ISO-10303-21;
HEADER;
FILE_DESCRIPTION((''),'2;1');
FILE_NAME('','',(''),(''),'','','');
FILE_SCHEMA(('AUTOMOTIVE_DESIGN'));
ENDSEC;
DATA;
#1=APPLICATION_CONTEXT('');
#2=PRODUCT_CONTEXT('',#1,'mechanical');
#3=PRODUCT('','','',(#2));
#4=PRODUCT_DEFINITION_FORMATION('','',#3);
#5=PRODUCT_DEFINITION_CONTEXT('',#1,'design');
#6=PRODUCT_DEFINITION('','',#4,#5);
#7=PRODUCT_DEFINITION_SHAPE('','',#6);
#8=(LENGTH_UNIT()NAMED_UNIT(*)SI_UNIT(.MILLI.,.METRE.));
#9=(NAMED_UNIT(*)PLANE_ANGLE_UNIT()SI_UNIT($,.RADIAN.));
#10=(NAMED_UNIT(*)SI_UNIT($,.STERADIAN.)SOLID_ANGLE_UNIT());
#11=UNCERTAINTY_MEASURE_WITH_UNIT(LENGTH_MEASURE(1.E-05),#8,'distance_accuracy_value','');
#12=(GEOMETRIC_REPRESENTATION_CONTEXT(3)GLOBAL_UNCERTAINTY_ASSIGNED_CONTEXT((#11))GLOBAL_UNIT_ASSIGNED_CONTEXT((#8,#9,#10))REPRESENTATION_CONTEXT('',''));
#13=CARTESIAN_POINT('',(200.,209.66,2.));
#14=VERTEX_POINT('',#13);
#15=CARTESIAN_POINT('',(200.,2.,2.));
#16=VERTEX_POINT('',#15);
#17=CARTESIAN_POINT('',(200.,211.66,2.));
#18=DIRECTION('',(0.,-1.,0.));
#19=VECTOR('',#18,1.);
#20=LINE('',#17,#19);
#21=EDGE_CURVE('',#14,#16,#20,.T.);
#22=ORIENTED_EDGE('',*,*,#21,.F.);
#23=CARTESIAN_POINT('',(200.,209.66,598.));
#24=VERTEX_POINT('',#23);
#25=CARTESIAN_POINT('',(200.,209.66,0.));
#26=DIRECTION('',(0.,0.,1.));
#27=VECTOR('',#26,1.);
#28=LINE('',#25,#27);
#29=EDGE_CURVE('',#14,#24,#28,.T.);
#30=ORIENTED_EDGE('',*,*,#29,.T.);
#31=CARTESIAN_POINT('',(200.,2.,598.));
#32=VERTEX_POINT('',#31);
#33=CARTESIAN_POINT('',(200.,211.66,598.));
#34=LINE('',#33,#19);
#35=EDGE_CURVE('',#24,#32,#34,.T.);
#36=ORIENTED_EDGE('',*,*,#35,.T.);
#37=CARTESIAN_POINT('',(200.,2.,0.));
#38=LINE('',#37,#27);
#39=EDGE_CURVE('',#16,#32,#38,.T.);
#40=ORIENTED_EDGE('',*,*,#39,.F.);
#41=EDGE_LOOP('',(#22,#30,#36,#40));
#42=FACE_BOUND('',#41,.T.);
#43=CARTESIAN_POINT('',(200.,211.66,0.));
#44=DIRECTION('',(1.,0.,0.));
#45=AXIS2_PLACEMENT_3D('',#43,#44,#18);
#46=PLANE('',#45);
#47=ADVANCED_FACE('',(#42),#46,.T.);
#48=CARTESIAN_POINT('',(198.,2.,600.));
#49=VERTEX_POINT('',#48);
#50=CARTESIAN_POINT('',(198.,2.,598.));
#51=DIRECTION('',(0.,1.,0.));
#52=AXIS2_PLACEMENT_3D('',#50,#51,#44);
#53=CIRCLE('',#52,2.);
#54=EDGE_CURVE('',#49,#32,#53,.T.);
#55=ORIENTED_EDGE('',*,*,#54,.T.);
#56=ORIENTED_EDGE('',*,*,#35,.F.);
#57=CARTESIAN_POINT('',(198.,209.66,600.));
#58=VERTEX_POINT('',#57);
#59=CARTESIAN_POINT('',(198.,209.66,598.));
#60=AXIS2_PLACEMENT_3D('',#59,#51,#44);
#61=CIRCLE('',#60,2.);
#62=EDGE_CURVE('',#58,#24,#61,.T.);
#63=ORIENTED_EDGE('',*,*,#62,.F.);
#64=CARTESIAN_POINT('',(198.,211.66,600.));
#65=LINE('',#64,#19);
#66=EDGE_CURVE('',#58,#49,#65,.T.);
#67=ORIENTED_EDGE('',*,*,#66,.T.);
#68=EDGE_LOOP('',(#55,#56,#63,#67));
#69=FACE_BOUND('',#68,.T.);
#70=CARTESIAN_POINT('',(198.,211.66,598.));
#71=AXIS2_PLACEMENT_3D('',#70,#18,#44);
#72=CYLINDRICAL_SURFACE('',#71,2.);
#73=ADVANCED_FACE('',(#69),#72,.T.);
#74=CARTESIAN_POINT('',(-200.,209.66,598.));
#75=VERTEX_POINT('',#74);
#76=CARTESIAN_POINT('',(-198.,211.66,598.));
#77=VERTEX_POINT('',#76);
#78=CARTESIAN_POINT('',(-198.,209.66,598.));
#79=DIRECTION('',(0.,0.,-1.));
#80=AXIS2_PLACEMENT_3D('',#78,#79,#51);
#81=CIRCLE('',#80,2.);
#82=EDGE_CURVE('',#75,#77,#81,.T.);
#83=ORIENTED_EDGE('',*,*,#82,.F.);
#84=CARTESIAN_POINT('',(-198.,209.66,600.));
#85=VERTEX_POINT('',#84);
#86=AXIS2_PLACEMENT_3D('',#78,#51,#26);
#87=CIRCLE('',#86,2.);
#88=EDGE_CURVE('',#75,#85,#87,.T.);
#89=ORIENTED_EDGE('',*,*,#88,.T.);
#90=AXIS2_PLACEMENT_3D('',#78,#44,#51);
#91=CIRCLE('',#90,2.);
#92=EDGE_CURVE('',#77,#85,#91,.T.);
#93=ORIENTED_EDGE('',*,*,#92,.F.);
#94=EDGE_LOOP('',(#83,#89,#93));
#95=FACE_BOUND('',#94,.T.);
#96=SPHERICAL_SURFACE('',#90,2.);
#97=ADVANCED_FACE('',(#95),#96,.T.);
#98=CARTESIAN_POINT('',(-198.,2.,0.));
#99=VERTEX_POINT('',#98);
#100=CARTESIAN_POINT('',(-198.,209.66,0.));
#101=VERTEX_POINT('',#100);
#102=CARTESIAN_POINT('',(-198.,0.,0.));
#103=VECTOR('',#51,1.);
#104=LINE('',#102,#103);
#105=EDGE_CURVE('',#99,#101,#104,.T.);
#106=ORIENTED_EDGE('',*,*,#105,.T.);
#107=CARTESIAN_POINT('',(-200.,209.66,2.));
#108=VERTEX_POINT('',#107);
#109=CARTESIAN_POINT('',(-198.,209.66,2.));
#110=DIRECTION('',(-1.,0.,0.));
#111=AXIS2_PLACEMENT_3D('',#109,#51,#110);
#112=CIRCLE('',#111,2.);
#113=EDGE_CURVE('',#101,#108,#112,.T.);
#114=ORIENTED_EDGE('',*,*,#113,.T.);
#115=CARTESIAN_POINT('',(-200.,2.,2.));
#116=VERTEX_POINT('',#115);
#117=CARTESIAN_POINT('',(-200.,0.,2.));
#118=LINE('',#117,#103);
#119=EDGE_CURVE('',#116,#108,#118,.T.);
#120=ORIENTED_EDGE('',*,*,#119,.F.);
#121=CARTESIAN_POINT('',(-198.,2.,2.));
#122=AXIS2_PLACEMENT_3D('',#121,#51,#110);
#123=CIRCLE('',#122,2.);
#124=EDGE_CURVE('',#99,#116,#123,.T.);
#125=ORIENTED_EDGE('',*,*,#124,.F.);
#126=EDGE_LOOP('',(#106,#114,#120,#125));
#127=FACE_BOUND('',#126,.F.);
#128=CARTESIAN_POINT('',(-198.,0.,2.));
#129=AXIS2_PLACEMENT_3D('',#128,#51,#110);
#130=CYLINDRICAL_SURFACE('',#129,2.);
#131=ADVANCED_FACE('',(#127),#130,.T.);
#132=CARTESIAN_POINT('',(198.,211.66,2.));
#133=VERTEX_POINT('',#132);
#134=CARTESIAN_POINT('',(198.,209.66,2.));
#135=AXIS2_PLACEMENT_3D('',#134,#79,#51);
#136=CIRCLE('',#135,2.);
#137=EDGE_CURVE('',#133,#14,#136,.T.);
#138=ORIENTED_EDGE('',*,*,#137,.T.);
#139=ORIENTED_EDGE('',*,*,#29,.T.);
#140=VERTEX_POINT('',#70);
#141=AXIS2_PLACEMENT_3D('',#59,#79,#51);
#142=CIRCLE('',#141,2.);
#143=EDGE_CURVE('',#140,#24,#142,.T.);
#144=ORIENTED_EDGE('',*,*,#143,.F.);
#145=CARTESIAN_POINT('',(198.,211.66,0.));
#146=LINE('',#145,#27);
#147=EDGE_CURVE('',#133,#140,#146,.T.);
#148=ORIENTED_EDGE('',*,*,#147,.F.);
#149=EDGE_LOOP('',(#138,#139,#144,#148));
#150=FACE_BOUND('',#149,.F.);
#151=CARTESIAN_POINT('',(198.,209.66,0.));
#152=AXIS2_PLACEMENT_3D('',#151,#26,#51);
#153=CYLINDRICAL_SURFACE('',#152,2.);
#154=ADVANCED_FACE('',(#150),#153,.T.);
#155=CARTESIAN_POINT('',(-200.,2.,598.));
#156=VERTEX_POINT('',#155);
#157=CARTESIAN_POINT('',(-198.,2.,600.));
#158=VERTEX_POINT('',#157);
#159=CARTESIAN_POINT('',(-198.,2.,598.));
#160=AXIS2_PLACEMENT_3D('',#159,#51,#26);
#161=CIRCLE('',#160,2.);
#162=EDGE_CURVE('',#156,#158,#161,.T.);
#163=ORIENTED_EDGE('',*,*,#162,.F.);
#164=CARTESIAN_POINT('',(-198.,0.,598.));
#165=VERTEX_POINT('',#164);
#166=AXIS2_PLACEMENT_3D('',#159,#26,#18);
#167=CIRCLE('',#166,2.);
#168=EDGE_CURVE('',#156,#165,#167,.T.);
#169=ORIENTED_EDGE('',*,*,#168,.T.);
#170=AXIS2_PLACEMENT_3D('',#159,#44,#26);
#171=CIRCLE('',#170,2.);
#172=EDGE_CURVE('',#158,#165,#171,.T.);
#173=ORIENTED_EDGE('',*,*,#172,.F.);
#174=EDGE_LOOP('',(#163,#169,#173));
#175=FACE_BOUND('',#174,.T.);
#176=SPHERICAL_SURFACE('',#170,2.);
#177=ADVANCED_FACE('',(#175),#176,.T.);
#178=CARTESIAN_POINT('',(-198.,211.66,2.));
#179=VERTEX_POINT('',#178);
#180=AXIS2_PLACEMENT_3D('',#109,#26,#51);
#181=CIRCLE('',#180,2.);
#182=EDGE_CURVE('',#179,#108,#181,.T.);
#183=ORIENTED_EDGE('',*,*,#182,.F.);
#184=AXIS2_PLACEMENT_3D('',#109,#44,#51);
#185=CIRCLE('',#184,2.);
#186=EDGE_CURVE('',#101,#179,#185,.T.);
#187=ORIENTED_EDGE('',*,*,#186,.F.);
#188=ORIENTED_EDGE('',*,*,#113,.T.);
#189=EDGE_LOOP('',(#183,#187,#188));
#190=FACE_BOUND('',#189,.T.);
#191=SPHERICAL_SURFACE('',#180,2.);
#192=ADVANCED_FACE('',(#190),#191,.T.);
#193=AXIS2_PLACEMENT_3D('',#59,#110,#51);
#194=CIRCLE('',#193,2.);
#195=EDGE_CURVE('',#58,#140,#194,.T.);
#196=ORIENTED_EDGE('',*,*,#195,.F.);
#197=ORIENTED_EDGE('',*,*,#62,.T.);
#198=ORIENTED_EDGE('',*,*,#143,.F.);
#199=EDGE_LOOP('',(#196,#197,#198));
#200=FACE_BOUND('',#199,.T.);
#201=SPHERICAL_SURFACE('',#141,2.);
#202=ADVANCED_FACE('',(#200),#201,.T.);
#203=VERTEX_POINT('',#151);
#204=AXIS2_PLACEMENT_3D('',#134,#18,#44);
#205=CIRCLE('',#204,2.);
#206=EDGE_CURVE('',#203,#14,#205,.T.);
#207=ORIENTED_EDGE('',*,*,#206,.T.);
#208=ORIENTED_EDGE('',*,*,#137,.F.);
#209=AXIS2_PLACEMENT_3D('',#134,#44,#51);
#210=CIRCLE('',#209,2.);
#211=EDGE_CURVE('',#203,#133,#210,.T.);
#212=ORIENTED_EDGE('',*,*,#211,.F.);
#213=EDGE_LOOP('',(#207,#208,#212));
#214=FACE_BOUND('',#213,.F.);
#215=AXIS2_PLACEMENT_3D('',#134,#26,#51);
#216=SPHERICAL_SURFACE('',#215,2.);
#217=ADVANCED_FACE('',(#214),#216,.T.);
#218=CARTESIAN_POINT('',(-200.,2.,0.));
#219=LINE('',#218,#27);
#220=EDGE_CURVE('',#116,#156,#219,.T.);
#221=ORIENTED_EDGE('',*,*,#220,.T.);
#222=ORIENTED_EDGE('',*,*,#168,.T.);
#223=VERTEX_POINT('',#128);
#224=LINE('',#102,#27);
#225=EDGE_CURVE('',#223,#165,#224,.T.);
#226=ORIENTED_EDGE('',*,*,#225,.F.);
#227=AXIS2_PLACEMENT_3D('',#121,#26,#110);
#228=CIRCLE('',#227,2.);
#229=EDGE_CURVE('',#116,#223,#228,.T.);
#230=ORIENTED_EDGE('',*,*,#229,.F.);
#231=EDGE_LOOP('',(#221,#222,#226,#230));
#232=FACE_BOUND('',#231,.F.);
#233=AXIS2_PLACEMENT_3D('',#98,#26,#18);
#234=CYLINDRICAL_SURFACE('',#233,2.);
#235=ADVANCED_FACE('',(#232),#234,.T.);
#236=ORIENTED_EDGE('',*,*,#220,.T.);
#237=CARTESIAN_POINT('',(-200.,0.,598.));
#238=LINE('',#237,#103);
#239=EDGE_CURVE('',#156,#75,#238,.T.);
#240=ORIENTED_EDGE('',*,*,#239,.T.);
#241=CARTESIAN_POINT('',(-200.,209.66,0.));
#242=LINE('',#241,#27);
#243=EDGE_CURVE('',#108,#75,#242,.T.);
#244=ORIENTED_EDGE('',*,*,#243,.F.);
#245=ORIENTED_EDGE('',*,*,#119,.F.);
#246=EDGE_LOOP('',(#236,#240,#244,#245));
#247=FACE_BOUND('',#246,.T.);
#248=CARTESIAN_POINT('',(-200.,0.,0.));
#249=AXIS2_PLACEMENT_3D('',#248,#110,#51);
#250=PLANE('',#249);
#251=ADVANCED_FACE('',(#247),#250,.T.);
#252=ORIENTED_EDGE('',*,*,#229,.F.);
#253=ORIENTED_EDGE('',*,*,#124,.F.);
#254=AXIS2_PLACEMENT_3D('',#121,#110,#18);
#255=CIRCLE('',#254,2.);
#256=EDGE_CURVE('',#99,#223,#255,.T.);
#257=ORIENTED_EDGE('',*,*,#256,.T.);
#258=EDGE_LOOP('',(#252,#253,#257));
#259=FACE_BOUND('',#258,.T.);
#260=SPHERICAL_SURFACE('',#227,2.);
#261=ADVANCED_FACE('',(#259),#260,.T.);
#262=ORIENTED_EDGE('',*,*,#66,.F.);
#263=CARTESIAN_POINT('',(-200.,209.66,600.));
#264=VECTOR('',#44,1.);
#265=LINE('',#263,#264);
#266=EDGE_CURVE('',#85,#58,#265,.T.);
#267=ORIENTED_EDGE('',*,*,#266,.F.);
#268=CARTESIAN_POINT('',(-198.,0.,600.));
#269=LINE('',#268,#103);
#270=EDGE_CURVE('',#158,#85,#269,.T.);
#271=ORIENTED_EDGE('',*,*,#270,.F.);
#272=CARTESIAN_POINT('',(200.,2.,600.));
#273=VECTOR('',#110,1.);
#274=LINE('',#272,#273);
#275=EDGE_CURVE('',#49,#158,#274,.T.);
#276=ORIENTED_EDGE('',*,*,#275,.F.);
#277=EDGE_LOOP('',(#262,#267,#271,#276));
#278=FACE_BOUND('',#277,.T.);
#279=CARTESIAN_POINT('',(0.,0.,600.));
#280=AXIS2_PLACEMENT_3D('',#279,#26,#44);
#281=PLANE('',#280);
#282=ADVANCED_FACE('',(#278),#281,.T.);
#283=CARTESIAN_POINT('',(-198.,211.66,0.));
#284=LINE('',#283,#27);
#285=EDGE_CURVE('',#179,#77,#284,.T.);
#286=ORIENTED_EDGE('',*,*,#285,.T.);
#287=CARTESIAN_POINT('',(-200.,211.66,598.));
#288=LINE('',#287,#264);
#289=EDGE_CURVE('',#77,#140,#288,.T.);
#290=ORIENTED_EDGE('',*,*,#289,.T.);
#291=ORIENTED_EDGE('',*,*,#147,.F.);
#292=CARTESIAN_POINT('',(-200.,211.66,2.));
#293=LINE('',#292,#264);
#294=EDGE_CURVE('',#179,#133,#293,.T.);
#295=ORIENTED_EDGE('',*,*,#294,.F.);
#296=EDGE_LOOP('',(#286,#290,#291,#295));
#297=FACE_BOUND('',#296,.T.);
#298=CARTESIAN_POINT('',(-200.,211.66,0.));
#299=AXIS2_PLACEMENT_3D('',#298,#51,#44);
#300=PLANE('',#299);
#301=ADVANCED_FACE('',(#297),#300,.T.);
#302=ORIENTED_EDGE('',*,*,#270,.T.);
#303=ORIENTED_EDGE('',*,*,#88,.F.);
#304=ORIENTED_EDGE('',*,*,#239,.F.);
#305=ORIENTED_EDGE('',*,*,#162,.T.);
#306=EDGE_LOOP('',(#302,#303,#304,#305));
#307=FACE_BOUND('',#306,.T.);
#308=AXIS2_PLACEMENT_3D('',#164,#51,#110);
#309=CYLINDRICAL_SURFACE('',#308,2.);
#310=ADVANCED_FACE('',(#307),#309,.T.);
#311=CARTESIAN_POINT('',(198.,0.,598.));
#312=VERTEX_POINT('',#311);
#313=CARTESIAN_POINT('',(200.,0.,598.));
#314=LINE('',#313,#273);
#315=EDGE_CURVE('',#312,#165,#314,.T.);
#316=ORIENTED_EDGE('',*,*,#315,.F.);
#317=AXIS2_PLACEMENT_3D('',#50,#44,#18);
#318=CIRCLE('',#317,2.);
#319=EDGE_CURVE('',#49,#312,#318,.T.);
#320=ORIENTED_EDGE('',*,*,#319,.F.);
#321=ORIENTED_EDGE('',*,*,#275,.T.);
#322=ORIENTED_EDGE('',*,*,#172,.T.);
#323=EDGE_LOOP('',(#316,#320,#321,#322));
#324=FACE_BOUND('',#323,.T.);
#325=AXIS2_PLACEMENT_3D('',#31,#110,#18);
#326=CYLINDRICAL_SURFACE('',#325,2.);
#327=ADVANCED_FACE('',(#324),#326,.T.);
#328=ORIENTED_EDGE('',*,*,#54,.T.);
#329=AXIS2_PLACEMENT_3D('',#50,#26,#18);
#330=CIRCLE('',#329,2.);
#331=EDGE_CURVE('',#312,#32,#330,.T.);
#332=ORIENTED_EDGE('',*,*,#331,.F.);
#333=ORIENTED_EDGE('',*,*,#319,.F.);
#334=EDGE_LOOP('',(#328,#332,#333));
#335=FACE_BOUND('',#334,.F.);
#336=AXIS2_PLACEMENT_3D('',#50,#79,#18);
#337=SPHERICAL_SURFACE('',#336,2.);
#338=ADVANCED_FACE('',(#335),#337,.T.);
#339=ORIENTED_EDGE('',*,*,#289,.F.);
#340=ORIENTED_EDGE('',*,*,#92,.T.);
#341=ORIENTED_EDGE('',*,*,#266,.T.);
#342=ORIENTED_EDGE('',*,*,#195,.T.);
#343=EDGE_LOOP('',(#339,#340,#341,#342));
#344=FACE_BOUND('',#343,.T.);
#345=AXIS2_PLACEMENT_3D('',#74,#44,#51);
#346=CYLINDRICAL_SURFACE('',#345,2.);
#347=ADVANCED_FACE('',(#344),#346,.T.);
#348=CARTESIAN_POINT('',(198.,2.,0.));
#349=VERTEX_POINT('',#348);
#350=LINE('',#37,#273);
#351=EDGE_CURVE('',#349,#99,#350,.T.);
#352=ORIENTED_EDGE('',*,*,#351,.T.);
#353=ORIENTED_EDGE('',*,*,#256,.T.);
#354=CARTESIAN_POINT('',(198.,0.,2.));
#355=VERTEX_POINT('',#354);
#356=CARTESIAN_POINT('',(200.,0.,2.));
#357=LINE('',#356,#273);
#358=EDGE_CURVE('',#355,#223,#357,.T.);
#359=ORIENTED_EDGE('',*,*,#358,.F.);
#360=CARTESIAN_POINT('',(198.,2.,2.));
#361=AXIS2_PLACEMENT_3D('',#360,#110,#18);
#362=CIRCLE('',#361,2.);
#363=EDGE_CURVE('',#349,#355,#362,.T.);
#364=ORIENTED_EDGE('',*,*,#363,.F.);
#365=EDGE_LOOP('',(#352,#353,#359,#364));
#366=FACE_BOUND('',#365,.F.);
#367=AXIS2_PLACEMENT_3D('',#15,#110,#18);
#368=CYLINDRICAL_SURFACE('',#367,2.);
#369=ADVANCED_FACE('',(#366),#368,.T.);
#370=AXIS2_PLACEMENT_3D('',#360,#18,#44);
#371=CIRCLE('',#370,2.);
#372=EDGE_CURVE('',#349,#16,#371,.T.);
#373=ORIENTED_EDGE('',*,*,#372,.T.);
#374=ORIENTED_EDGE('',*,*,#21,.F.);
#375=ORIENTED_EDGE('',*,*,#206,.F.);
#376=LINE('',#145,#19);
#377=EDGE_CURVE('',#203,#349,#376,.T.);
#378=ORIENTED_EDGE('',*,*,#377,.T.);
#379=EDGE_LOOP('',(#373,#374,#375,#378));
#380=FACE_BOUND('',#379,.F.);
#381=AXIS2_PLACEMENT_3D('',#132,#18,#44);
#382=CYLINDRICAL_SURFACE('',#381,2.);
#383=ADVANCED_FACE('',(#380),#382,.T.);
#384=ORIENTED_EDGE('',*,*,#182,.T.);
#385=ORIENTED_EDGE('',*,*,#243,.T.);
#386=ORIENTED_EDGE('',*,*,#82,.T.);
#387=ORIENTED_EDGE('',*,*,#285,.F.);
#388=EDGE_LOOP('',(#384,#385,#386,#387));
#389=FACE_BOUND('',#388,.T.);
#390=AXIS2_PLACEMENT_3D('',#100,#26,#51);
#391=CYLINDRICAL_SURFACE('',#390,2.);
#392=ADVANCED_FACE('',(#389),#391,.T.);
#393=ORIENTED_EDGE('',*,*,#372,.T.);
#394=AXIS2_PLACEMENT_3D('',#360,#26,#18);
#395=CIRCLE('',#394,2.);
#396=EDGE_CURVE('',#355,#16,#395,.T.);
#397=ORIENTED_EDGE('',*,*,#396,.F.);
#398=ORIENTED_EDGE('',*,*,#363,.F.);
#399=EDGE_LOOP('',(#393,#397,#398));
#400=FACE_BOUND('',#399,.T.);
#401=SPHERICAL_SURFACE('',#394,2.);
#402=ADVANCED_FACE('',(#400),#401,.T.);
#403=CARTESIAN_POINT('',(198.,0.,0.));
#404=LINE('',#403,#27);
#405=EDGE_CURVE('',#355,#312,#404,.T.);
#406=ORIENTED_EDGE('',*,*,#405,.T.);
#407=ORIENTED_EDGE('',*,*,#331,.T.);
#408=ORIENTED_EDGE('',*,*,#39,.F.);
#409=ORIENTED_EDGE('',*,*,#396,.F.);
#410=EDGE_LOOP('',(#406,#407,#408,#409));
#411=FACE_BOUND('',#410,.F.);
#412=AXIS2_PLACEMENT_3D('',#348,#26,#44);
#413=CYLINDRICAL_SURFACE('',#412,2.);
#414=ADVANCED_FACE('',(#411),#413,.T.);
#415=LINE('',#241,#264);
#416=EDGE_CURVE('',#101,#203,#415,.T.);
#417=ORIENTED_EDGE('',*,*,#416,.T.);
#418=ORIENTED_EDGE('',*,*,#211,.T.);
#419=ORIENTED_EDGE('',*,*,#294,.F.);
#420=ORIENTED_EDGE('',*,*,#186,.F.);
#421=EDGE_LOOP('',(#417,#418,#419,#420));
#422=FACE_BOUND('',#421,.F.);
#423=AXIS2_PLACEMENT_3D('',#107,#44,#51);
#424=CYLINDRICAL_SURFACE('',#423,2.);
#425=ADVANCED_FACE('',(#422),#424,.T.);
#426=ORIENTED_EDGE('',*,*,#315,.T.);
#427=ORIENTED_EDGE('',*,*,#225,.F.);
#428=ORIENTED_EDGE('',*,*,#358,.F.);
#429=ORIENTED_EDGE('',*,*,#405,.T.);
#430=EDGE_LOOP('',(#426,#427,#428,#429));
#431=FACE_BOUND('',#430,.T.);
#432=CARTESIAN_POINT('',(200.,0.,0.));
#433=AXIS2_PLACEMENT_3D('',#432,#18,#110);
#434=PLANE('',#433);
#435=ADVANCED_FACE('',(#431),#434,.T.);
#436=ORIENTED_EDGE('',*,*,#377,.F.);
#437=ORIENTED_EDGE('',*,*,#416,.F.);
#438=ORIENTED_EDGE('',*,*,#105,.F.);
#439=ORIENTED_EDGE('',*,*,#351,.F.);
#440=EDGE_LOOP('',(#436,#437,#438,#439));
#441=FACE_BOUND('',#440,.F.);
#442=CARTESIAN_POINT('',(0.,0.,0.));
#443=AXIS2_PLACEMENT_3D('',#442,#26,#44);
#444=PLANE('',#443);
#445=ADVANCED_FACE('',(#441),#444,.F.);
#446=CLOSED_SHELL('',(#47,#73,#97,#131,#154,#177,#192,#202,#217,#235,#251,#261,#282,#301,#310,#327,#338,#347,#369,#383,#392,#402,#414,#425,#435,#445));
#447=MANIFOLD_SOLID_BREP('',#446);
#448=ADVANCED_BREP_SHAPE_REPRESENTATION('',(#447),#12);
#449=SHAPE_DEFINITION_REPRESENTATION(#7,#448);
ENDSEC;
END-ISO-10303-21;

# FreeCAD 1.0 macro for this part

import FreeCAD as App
import Part
import Sketcher


def add_polygon(sketch, points):
    """Adds a closed chain of lines whose ends are joined by coincident constraints."""
    first, n = sketch.GeometryCount, len(points)
    for a, b in zip(points, points[1:] + points[:1]):
        sketch.addGeometry(Part.LineSegment(App.Vector(*a, 0), App.Vector(*b, 0)), False)
    for i in range(n):
        sketch.addConstraint(Sketcher.Constraint("Coincident", first + i, 2, first + (i + 1) % n, 1))

doc = App.newDocument("Part")
body = doc.addObject("PartDesign::Body", "Body")

# Sketch on XY plane
sketch1 = body.newObject("Sketcher::SketchObject", "Sketch")
sketch1.AttachmentSupport = (doc.getObject("XY_Plane"), [""])
sketch1.MapMode = "FlatFace"
add_polygon(sketch1, [(200, 212), (-200, 212), (-200, 0), (200, 0)])  # lines 0-3
sketch1.addConstraint([
    Sketcher.Constraint("Horizontal", 0),
    Sketcher.Constraint("Vertical", 1),
    Sketcher.Constraint("Horizontal", 2),
    Sketcher.Constraint("Vertical", 3),
    Sketcher.Constraint("Symmetric", 1, 2, 2, 2, -1, 1),
    Sketcher.Constraint("DistanceX", 0, 2, 0, 1, 400.0),
    Sketcher.Constraint("DistanceY", 1, 2, 1, 1, 211.66),
])
pad1 = body.newObject("PartDesign::Pad", "Pad")
pad1.Profile = sketch1
pad1.Length = 600
doc.recompute()

fillet = body.newObject("PartDesign::Fillet", "Fillet")
fillet.Base = (pad1, ["Edge1"])
fillet.UseAllEdges = True
fillet.Radius = 2

doc.recompute()
